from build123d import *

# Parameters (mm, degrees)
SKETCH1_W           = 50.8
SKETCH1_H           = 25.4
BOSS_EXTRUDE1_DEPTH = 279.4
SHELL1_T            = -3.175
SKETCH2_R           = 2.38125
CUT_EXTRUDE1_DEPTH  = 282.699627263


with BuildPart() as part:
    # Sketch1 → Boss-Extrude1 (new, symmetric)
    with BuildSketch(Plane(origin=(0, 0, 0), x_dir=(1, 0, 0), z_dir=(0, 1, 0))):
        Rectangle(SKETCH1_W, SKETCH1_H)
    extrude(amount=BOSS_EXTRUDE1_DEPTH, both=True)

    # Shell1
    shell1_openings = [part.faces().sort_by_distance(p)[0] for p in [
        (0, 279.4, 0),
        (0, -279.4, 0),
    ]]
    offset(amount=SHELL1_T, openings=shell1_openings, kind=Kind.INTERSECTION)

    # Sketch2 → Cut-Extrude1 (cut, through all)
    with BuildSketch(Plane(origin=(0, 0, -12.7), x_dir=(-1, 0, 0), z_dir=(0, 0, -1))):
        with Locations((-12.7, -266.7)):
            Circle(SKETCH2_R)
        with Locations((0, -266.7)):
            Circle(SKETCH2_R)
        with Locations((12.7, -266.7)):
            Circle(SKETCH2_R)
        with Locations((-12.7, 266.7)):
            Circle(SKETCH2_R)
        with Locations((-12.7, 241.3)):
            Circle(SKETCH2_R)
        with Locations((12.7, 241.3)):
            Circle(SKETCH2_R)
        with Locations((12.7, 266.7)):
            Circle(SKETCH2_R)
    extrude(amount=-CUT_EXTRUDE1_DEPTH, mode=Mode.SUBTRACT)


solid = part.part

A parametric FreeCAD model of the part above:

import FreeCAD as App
import Part
import Sketcher

V = App.Vector
Q = App.Units.Quantity


def faces_at(feature, points):
    """Names of the faces that lie closest to the given points."""
    faces = feature.Shape.Faces
    near = lambda p: min(range(len(faces)), key=lambda i: faces[i].distToShape(Part.Vertex(*p))[0])
    return sorted({f"Face{near(p) + 1}" for p in points})

doc = App.newDocument("Part")
body = doc.addObject("PartDesign::Body", "Body")

sketch1 = doc.addObject("Sketcher::SketchObject", "Sketch")
body.addObject(sketch1)
sketch1.AttachmentSupport = (doc.XZ_Plane, [""])
sketch1.MapMode = "FlatFace"
sketch1.addGeometry(Part.LineSegment(V(-25, -13, 0), V(-25, 13, 0)), False)
sketch1.addGeometry(Part.LineSegment(V(-25, 13, 0), V(25, 13, 0)), False)
sketch1.addGeometry(Part.LineSegment(V(25, 13, 0), V(25, -13, 0)), False)
sketch1.addGeometry(Part.LineSegment(V(25, -13, 0), V(-25, -13, 0)), False)
sketch1.addConstraint(Sketcher.Constraint("Coincident", 0, 2, 1, 1))
sketch1.addConstraint(Sketcher.Constraint("Coincident", 1, 2, 2, 1))
sketch1.addConstraint(Sketcher.Constraint("Coincident", 2, 2, 3, 1))
sketch1.addConstraint(Sketcher.Constraint("Coincident", 3, 2, 0, 1))
sketch1.addConstraint(Sketcher.Constraint("Vertical", 0))
sketch1.addConstraint(Sketcher.Constraint("Horizontal", 1))
sketch1.addConstraint(Sketcher.Constraint("Vertical", 2))
sketch1.addConstraint(Sketcher.Constraint("Horizontal", 3))
sketch1.addConstraint(Sketcher.Constraint("Symmetric", 0, 2, 2, 2, -1, 1))
sketch1.addConstraint(Sketcher.Constraint("DistanceX", 1, 1, 1, 2, Q("2 in")))
sketch1.addConstraint(Sketcher.Constraint("DistanceY", 0, 1, 0, 2, Q("1 in")))
pad1 = doc.addObject("PartDesign::Pad", "Pad")
body.addObject(pad1)
pad1.Profile = sketch1
pad1.Length = Q("22 in")
pad1.Midplane = True
doc.recompute()

thickness = doc.addObject("PartDesign::Thickness", "Thickness")
body.addObject(thickness)
thickness.Base = (pad1, faces_at(pad1, [(0, 279.4, 0), (0, -279.4, 0)]))
thickness.Value = Q("0.125 in")
thickness.Reversed = True
thickness.Join = "Intersection"

sketch2 = doc.addObject("Sketcher::SketchObject", "Sketch001")
body.addObject(sketch2)
sketch2.AttachmentSupport = (doc.XY_Plane, [""])
sketch2.MapMode = "FlatFace"
sketch2.AttachmentOffset = App.Placement(V(0, 0, -0.5 * 25.4), App.Rotation())
sketch2.addGeometry(Part.Circle(V(12.7, -266.7, 0), V(0, 0, 1), 2.4), False)
sketch2.addGeometry(Part.Circle(V(0, -266.7, 0), V(0, 0, 1), 2.4), False)
sketch2.addGeometry(Part.Circle(V(-12.7, -266.7, 0), V(0, 0, 1), 2.4), False)
sketch2.addGeometry(Part.Circle(V(12.7, 266.7, 0), V(0, 0, 1), 2.4), False)
sketch2.addGeometry(Part.Circle(V(12.7, 241.3, 0), V(0, 0, 1), 2.4), False)
sketch2.addGeometry(Part.Circle(V(-12.7, 241.3, 0), V(0, 0, 1), 2.4), False)
sketch2.addGeometry(Part.Circle(V(-12.7, 266.7, 0), V(0, 0, 1), 2.4), False)
sketch2.addConstraint(Sketcher.Constraint("Equal", 0, 1))
sketch2.addConstraint(Sketcher.Constraint("Equal", 1, 2))
sketch2.addConstraint(Sketcher.Constraint("Equal", 2, 3))
sketch2.addConstraint(Sketcher.Constraint("Equal", 3, 4))
sketch2.addConstraint(Sketcher.Constraint("Equal", 4, 5))
sketch2.addConstraint(Sketcher.Constraint("Equal", 5, 6))
sketch2.addConstraint(Sketcher.Constraint("Symmetric", 2, 3, 3, 3, -1, 1))
sketch2.addConstraint(Sketcher.Constraint("Symmetric", 0, 3, 6, 3, -1, 1))
sketch2.addConstraint(Sketcher.Constraint("Symmetric", 0, 3, 2, 3, -2))
sketch2.addConstraint(Sketcher.Constraint("Symmetric", 4, 3, 5, 3, -2))
sketch2.addConstraint(Sketcher.Constraint("PointOnObject", 1, 3, -2))
sketch2.addConstraint(Sketcher.Constraint("Horizontal", 0, 3, 1, 3))
sketch2.addConstraint(Sketcher.Constraint("Vertical", 3, 3, 4, 3))
sketch2.addConstraint(Sketcher.Constraint("Diameter", 0, Q("0.1875 in")))
sketch2.addConstraint(Sketcher.Constraint("DistanceX", 2, 3, 0, 3, Q("1 in")))
sketch2.addConstraint(Sketcher.Constraint("DistanceY", 0, 3, 3, 3, Q("21 in")))
sketch2.addConstraint(Sketcher.Constraint("DistanceY", 4, 3, 3, 3, Q("1 in")))
pocket1 = doc.addObject("PartDesign::Pocket", "Pocket")
body.addObject(pocket1)
pocket1.Profile = sketch2
pocket1.Type = "ThroughAll"
pocket1.Reversed = True

doc.recompute()
